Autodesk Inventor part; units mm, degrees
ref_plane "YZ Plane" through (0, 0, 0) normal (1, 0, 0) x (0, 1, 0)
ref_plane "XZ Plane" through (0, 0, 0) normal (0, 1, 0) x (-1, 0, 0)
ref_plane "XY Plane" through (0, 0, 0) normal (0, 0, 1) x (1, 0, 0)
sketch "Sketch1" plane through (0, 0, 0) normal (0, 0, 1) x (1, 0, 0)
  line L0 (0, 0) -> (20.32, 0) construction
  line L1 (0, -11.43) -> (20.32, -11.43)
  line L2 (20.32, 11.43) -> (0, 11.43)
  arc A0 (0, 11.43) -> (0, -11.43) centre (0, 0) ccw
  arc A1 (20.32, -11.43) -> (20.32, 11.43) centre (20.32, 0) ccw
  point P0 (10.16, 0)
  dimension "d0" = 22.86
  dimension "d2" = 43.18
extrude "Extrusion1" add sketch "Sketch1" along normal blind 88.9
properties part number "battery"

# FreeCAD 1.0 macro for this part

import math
import FreeCAD as App
import Part
import Sketcher
from FreeCAD import Vector
Q = App.Units.Quantity

doc = App.newDocument("Part")
body = doc.addObject("PartDesign::Body", "Body")

# Sketch on XY plane
sketch1 = body.newObject("Sketcher::SketchObject", "Sketch")
sketch1.AttachmentSupport = (doc.getObject("XY_Plane"), [""])
sketch1.MapMode = "FlatFace"
sketch1.addGeometry(Part.ArcOfCircle(Part.Circle(Vector(0, 0, 0), Vector(0, 0, 1), 11), math.radians(90), math.radians(270)), False)
sketch1.addGeometry(Part.LineSegment(Vector(0, -11, 0), Vector(20, -11, 0)), False)
sketch1.addGeometry(Part.ArcOfCircle(Part.Circle(Vector(20, 0, 0), Vector(0, 0, 1), 11), math.radians(-90), math.radians(90)), False)
sketch1.addGeometry(Part.LineSegment(Vector(20, 11, 0), Vector(0, 11, 0)), False)
sketch1.addConstraint(Sketcher.Constraint("Tangent", 0, 2, 1, 1))
sketch1.addConstraint(Sketcher.Constraint("Tangent", 1, 2, 2, 1))
sketch1.addConstraint(Sketcher.Constraint("Tangent", 2, 2, 3, 1))
sketch1.addConstraint(Sketcher.Constraint("Tangent", 3, 2, 0, 1))
sketch1.addConstraint(Sketcher.Constraint("Horizontal", 1))
sketch1.addConstraint(Sketcher.Constraint("Horizontal", 3))
sketch1.addConstraint(Sketcher.Constraint("Coincident", 0, 3, -1, 1))
sketch1.addConstraint(Sketcher.Constraint("Radius", 0, Q("0.45 in")))
sketch1.addConstraint(Sketcher.Constraint("DistanceX", 1, 1, 1, 2, Q("0.8 in")))
pad1 = body.newObject("PartDesign::Pad", "Pad")
pad1.Profile = sketch1
pad1.Length = Q("3.5 in")

doc.recompute()
